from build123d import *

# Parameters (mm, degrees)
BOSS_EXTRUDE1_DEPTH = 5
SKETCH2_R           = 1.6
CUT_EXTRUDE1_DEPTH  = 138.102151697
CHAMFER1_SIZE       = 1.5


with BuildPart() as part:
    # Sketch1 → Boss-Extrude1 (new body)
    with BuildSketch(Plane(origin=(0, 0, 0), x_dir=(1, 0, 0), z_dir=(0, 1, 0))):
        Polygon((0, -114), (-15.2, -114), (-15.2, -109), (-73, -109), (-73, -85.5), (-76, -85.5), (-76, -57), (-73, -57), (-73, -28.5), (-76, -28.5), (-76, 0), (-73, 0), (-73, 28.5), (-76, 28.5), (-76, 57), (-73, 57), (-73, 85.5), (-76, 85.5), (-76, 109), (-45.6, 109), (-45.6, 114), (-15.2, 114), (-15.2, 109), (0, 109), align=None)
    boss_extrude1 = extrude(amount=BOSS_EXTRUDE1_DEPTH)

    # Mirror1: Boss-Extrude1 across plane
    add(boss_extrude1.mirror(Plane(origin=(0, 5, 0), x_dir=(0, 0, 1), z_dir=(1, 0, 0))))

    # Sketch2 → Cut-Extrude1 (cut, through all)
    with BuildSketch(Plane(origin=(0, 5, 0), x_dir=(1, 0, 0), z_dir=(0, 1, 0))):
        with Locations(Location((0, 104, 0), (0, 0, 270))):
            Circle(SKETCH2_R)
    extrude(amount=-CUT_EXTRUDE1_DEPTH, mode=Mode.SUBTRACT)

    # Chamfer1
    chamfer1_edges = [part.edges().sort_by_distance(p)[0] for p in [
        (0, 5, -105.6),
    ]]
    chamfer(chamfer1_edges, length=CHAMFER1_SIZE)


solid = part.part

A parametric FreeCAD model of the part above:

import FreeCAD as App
import Part
import Sketcher
from FreeCAD import Vector


def edges_at(feature, points):
    """Names of the edges that pass closest to the given points."""
    edges = feature.Shape.Edges
    near = lambda p: min(range(len(edges)), key=lambda i: edges[i].distToShape(Part.Vertex(*p))[0])
    return sorted({f"Edge{near(p) + 1}" for p in points})

doc = App.newDocument("Part")
body = doc.addObject("PartDesign::Body", "Body")

# Sketch on XZ plane
sketch1 = doc.addObject("Sketcher::SketchObject", "Sketch")
body.addObject(sketch1)
sketch1.AttachmentSupport = (doc.XZ_Plane, [""])
sketch1.MapMode = "FlatFace"
sketch1.addGeometry([
    Part.LineSegment(Vector(-15.2, 114, 0), Vector(0, 114, 0)),  # 0
    Part.LineSegment(Vector(0, 114, 0), Vector(0, -109, 0)),  # 1
    Part.LineSegment(Vector(0, -109, 0), Vector(-15.2, -109, 0)),  # 2
    Part.LineSegment(Vector(-15.2, -109, 0), Vector(-15.2, -114, 0)),  # 3
    Part.LineSegment(Vector(-15.2, -114, 0), Vector(-45.6, -114, 0)),  # 4
    Part.LineSegment(Vector(-45.6, -114, 0), Vector(-45.6, -109, 0)),  # 5
    Part.LineSegment(Vector(-45.6, -109, 0), Vector(-76, -109, 0)),  # 6
    Part.LineSegment(Vector(-76, -109, 0), Vector(-76, -85.5, 0)),  # 7
    Part.LineSegment(Vector(-76, -85.5, 0), Vector(-73, -85.5, 0)),  # 8
    Part.LineSegment(Vector(-73, -85.5, 0), Vector(-73, -57, 0)),  # 9
    Part.LineSegment(Vector(-73, -57, 0), Vector(-76, -57, 0)),  # 10
    Part.LineSegment(Vector(-76, -57, 0), Vector(-76, -28.5, 0)),  # 11
    Part.LineSegment(Vector(-76, -28.5, 0), Vector(-73, -28.5, 0)),  # 12
    Part.LineSegment(Vector(-73, -28.5, 0), Vector(-73, 0, 0)),  # 13
    Part.LineSegment(Vector(-73, 0, 0), Vector(-76, 0, 0)),  # 14
    Part.LineSegment(Vector(-76, 0, 0), Vector(-76, 28.5, 0)),  # 15
    Part.LineSegment(Vector(-76, 28.5, 0), Vector(-73, 28.5, 0)),  # 16
    Part.LineSegment(Vector(-73, 28.5, 0), Vector(-73, 57, 0)),  # 17
    Part.LineSegment(Vector(-73, 57, 0), Vector(-76, 57, 0)),  # 18
    Part.LineSegment(Vector(-76, 57, 0), Vector(-76, 85.5, 0)),  # 19
    Part.LineSegment(Vector(-76, 85.5, 0), Vector(-73, 85.5, 0)),  # 20
    Part.LineSegment(Vector(-73, 85.5, 0), Vector(-73, 109, 0)),  # 21
    Part.LineSegment(Vector(-73, 109, 0), Vector(-15.2, 109, 0)),  # 22
    Part.LineSegment(Vector(-15.2, 109, 0), Vector(-15.2, 114, 0)),  # 23
], False)
sketch1.addConstraint([
    Sketcher.Constraint("Coincident", 0, 2, 1, 1),
    Sketcher.Constraint("Coincident", 1, 2, 2, 1),
    Sketcher.Constraint("Coincident", 2, 2, 3, 1),
    Sketcher.Constraint("Coincident", 3, 2, 4, 1),
    Sketcher.Constraint("Coincident", 4, 2, 5, 1),
    Sketcher.Constraint("Coincident", 5, 2, 6, 1),
    Sketcher.Constraint("Coincident", 6, 2, 7, 1),
    Sketcher.Constraint("Coincident", 7, 2, 8, 1),
    Sketcher.Constraint("Coincident", 8, 2, 9, 1),
    Sketcher.Constraint("Coincident", 9, 2, 10, 1),
    Sketcher.Constraint("Coincident", 10, 2, 11, 1),
    Sketcher.Constraint("Coincident", 11, 2, 12, 1),
    Sketcher.Constraint("Coincident", 12, 2, 13, 1),
    Sketcher.Constraint("Coincident", 13, 2, 14, 1),
    Sketcher.Constraint("Coincident", 14, 2, 15, 1),
    Sketcher.Constraint("Coincident", 15, 2, 16, 1),
    Sketcher.Constraint("Coincident", 16, 2, 17, 1),
    Sketcher.Constraint("Coincident", 17, 2, 18, 1),
    Sketcher.Constraint("Coincident", 18, 2, 19, 1),
    Sketcher.Constraint("Coincident", 19, 2, 20, 1),
    Sketcher.Constraint("Coincident", 20, 2, 21, 1),
    Sketcher.Constraint("Coincident", 21, 2, 22, 1),
    Sketcher.Constraint("Coincident", 22, 2, 23, 1),
    Sketcher.Constraint("Coincident", 23, 2, 0, 1),
    Sketcher.Constraint("Horizontal", 0),
    Sketcher.Constraint("Vertical", 1),
    Sketcher.Constraint("Horizontal", 2),
    Sketcher.Constraint("Vertical", 3),
    Sketcher.Constraint("Horizontal", 4),
    Sketcher.Constraint("Vertical", 5),
    Sketcher.Constraint("Horizontal", 6),
    Sketcher.Constraint("Vertical", 7),
    Sketcher.Constraint("Horizontal", 8),
    Sketcher.Constraint("Vertical", 9),
    Sketcher.Constraint("Horizontal", 10),
    Sketcher.Constraint("Vertical", 11),
    Sketcher.Constraint("Horizontal", 12),
    Sketcher.Constraint("Vertical", 13),
    Sketcher.Constraint("Horizontal", 14),
    Sketcher.Constraint("Vertical", 15),
    Sketcher.Constraint("Horizontal", 16),
    Sketcher.Constraint("Vertical", 17),
    Sketcher.Constraint("Horizontal", 18),
    Sketcher.Constraint("Vertical", 19),
    Sketcher.Constraint("Horizontal", 20),
    Sketcher.Constraint("Vertical", 21),
    Sketcher.Constraint("Horizontal", 22),
    Sketcher.Constraint("Vertical", 23),
    Sketcher.Constraint("Symmetric", 11, 2, 15, 2, -1),
    Sketcher.Constraint("Symmetric", 9, 2, 17, 2, -1),
    Sketcher.Constraint("Symmetric", 7, 2, 19, 2, -1),
    Sketcher.Constraint("Symmetric", 2, 2, 22, 2, -1),
    Sketcher.Constraint("PointOnObject", 0, 2, -2),
    Sketcher.Constraint("PointOnObject", 13, 2, -1),
    Sketcher.Constraint("Horizontal", 2, 2, 5, 2),
    Sketcher.Constraint("Vertical", 7, 2, 10, 2),
    Sketcher.Constraint("Vertical", 9, 2, 12, 2),
    Sketcher.Constraint("Vertical", 17, 2, 20, 2),
    Sketcher.Constraint("Equal", 4, 6),
    Sketcher.Constraint("Equal", 9, 11),
    Sketcher.Constraint("Equal", 11, 13),
    Sketcher.Constraint("Equal", 5, 23),
    Sketcher.Constraint("DistanceX", 8, 1, 8, 2, 3.0),
    Sketcher.Constraint("DistanceY", 1, 2, 1, 1, 223.0),
    Sketcher.Constraint("DistanceY", 3, 2, 3, 1, 5.0),
    Sketcher.Constraint("DistanceX", 0, 1, 0, 2, 15.2),
    Sketcher.Constraint("DistanceX", 4, 2, 4, 1, 30.4),
    Sketcher.Constraint("DistanceY", 7, 1, 7, 2, 23.5),
])
pad1 = doc.addObject("PartDesign::Pad", "Pad")
body.addObject(pad1)
pad1.Profile = sketch1
pad1.Length = 5
pad1.Reversed = True
doc.recompute()

mirrored = doc.addObject("PartDesign::Mirrored", "Mirrored")
body.addObject(mirrored)
mirrored.Originals = [pad1]
mirrored.MirrorPlane = (doc.YZ_Plane, [""])
body.Tip = mirrored

# Sketch on XZ plane
sketch2 = doc.addObject("Sketcher::SketchObject", "Sketch001")
body.addObject(sketch2)
sketch2.AttachmentSupport = (doc.XZ_Plane, [""])
sketch2.MapMode = "FlatFace"
sketch2.AttachmentOffset = App.Placement(Vector(0, 0, -5), App.Rotation())
sketch2.addGeometry(Part.Circle(Vector(0, -104, 0), Vector(0, 0, 1), 1.6), False)
sketch2.addConstraint([
    Sketcher.Constraint("PointOnObject", 0, 3, -2),
    Sketcher.Constraint("Diameter", 0, 3.2),
    Sketcher.Constraint("DistanceY", 0, 3, -1, 1, 104.0),
])
pocket1 = doc.addObject("PartDesign::Pocket", "Pocket")
body.addObject(pocket1)
pocket1.Profile = sketch2
pocket1.Type = "ThroughAll"
pocket1.Reversed = True
doc.recompute()

chamfer = doc.addObject("PartDesign::Chamfer", "Chamfer")
body.addObject(chamfer)
chamfer.Base = (pocket1, edges_at(pocket1, [(0, 5, -105.6)]))
chamfer.Size = 1.5

doc.recompute()
